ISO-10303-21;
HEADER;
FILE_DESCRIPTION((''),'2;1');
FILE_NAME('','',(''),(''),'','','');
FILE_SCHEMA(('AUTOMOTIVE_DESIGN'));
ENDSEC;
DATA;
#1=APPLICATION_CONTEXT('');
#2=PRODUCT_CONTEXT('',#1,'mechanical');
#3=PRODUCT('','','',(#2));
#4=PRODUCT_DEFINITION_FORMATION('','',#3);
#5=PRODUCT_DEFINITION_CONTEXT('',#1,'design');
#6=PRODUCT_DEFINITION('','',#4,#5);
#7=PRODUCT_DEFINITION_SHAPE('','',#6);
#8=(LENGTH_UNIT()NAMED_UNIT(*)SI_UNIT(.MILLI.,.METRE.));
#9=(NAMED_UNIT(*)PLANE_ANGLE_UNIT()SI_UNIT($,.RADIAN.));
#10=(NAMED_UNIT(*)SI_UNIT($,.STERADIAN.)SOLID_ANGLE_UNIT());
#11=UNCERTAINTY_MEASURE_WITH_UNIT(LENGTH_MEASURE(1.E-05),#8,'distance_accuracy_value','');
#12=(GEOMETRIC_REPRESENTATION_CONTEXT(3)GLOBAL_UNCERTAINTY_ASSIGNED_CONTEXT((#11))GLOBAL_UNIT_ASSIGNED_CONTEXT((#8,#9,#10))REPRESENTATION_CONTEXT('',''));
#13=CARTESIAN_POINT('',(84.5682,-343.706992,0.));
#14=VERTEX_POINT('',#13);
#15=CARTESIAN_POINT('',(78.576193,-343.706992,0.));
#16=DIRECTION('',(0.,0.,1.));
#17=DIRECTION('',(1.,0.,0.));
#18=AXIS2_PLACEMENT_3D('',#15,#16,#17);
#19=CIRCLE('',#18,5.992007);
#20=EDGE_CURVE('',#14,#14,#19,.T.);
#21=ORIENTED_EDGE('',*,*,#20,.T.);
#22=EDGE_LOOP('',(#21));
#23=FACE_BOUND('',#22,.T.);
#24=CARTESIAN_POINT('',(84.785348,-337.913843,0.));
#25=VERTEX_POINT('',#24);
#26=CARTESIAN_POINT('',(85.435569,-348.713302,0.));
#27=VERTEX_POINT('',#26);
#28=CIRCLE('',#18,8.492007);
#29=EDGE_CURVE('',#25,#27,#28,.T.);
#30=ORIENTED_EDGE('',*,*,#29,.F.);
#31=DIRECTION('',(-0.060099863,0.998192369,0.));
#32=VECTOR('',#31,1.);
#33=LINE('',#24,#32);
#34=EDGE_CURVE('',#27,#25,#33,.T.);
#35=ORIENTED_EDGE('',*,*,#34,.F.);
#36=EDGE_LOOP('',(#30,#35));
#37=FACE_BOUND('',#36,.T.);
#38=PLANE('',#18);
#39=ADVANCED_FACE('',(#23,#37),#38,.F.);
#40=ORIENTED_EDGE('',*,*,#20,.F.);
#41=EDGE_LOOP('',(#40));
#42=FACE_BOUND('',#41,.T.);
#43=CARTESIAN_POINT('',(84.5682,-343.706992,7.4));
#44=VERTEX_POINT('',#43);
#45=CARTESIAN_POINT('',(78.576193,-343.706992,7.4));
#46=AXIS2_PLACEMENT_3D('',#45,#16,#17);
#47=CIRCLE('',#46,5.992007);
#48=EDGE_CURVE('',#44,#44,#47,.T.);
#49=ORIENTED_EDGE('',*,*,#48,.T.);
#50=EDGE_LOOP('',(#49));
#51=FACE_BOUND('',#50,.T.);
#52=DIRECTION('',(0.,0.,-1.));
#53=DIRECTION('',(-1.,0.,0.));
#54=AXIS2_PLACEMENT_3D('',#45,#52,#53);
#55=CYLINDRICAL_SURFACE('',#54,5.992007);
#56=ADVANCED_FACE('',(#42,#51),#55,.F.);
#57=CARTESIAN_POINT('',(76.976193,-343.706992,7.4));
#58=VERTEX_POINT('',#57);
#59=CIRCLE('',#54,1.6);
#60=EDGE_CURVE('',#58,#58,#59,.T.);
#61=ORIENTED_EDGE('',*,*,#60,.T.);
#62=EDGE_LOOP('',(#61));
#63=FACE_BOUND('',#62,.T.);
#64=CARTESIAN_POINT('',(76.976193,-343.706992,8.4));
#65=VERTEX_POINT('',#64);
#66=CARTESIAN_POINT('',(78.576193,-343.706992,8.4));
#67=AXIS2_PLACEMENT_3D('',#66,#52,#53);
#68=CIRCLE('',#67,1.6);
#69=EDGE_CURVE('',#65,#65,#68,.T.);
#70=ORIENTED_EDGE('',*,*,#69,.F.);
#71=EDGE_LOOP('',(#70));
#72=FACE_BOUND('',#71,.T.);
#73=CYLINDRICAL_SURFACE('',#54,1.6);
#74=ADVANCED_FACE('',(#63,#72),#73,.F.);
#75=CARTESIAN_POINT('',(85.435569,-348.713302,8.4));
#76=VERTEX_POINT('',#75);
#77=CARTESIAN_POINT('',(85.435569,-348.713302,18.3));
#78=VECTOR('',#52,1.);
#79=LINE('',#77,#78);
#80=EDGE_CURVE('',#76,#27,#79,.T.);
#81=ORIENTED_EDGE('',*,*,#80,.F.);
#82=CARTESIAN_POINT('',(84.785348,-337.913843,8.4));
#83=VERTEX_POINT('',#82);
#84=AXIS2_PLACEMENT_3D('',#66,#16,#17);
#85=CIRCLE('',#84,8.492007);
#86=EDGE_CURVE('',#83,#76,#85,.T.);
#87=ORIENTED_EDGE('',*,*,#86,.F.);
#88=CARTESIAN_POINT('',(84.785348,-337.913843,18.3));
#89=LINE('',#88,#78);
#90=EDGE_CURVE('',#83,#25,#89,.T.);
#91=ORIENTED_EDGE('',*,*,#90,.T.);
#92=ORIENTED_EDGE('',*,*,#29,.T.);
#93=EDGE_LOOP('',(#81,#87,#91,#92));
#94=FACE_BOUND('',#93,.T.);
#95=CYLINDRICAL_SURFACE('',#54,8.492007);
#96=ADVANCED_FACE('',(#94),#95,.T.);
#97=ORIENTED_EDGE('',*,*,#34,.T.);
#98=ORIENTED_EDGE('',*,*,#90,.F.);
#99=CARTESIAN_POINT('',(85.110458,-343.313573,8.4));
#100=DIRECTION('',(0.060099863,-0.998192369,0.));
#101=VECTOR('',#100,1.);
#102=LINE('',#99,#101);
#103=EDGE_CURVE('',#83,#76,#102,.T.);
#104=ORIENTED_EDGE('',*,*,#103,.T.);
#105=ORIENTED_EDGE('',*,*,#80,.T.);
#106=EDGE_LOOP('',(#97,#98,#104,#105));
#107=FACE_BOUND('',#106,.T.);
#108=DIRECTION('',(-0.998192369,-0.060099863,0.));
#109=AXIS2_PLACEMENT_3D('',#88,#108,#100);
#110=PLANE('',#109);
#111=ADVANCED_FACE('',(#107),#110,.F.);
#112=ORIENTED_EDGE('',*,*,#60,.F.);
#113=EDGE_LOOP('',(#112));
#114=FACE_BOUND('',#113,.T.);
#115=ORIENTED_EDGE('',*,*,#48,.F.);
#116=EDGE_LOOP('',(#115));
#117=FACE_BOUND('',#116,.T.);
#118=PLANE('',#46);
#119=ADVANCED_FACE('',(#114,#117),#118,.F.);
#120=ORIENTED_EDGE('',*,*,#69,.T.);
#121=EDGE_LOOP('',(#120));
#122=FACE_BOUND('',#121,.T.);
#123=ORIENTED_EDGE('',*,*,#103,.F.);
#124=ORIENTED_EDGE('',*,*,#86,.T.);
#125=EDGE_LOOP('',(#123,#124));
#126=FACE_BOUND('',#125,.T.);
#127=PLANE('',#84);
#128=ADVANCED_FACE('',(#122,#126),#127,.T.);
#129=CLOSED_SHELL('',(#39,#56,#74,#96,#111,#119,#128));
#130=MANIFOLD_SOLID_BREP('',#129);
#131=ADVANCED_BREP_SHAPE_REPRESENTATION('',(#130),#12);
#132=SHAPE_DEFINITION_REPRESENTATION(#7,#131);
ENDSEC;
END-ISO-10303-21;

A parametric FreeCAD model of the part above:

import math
import FreeCAD as App
import Part
import Sketcher
from FreeCAD import Vector
Q = App.Units.Quantity

doc = App.newDocument("Part")
body = doc.addObject("PartDesign::Body", "Body")

# Sketch on XY plane
sketch1 = body.newObject("Sketcher::SketchObject", "Sketch")
sketch1.AttachmentSupport = (doc.getObject("XY_Plane"), [""])
sketch1.MapMode = "FlatFace"
sketch1.addGeometry([
    Part.Circle(Vector(78.576193, -343.706992, 0), Vector(0, 0, 1), 8.492007),
    Part.Circle(Vector(78.576193, -343.706992, 0), Vector(0, 0, 1), 5.992007),
], False)
sketch1.addConstraint([
    Sketcher.Constraint("Coincident", 1, 3, 0, 3),
    Sketcher.Constraint("Diameter", 0, Q("16.984013 mm")),
    Sketcher.Constraint("Diameter", 1, Q("11.984013 mm")),
    Sketcher.Constraint("DistanceX", -1, 1, 0, 3, Q("78.576193 mm")),
    Sketcher.Constraint("DistanceY", 0, 3, -1, 1, Q("343.706992 mm")),
])
pad1 = body.newObject("PartDesign::Pad", "Pad")
pad1.Profile = sketch1
pad1.Length = 7.4

# Sketch on XY plane
sketch2 = body.newObject("Sketcher::SketchObject", "Sketch001")
sketch2.AttachmentSupport = (doc.getObject("XY_Plane"), [""])
sketch2.MapMode = "FlatFace"
sketch2.AttachmentOffset = App.Placement(Vector(0, 0, 7.4), App.Rotation())
sketch2.addGeometry(Part.Circle(Vector(78.576193, -343.706992, 0), Vector(0, 0, 1), 8.492007), False)
sketch2.addConstraint([
    Sketcher.Constraint("Diameter", 0, Q("16.984013 mm")),
    Sketcher.Constraint("DistanceX", -1, 1, 0, 3, Q("78.576193 mm")),
    Sketcher.Constraint("DistanceY", 0, 3, -1, 1, Q("343.706992 mm")),
])
pad2 = body.newObject("PartDesign::Pad", "Pad001")
pad2.Profile = sketch2
pad2.Length = 1

# Sketch on XY plane
sketch3 = body.newObject("Sketcher::SketchObject", "Sketch002")
sketch3.AttachmentSupport = (doc.getObject("XY_Plane"), [""])
sketch3.MapMode = "FlatFace"
sketch3.addGeometry([
    Part.LineSegment(Vector(85.435569, -348.713302, 0), Vector(84.785348, -337.913843, 0)),
    Part.ArcOfCircle(Part.Circle(Vector(78.576193, -343.706992, 0), Vector(0, 0, 1), 8.492007), math.radians(-36.123806), math.radians(43.014895)),
], False)
sketch3.addConstraint([
    Sketcher.Constraint("Coincident", 0, 1, 1, 1),
    Sketcher.Constraint("Coincident", 1, 2, 0, 2),
    Sketcher.Constraint("Radius", 1, Q("8.492007 mm")),
    Sketcher.Constraint("DistanceX", -1, 1, 0, 1, Q("85.435569 mm")),
    Sketcher.Constraint("DistanceY", 0, 1, 1, 3, Q("5.00631 mm")),
    Sketcher.Constraint("DistanceY", 1, 3, 1, 2, Q("5.793149 mm")),
    Sketcher.Constraint("DistanceY", 1, 3, -1, 1, Q("343.706992 mm")),
])
pocket1 = body.newObject("PartDesign::Pocket", "Pocket")
pocket1.Profile = sketch3
pocket1.Length = 18.3
pocket1.Reversed = True

# Sketch on XY plane
sketch4 = body.newObject("Sketcher::SketchObject", "Sketch003")
sketch4.AttachmentSupport = (doc.getObject("XY_Plane"), [""])
sketch4.MapMode = "FlatFace"
sketch4.AttachmentOffset = App.Placement(Vector(0, 0, 7.4), App.Rotation())
sketch4.addGeometry(Part.Circle(Vector(78.576193, -343.706992, 0), Vector(0, 0, 1), 1.6), False)
sketch4.addConstraint([
    Sketcher.Constraint("Diameter", 0, Q("3.2 mm")),
    Sketcher.Constraint("DistanceX", -1, 1, 0, 3, Q("78.576193 mm")),
    Sketcher.Constraint("DistanceY", 0, 3, -1, 1, Q("343.706992 mm")),
])
doc.recompute()
hole = body.newObject("PartDesign::Hole", "Hole")
hole.Profile = sketch4
hole.ThreadType = "None"
hole.Diameter = 3.2
hole.DepthType = "ThroughAll"
hole.Reversed = True

doc.recompute()
